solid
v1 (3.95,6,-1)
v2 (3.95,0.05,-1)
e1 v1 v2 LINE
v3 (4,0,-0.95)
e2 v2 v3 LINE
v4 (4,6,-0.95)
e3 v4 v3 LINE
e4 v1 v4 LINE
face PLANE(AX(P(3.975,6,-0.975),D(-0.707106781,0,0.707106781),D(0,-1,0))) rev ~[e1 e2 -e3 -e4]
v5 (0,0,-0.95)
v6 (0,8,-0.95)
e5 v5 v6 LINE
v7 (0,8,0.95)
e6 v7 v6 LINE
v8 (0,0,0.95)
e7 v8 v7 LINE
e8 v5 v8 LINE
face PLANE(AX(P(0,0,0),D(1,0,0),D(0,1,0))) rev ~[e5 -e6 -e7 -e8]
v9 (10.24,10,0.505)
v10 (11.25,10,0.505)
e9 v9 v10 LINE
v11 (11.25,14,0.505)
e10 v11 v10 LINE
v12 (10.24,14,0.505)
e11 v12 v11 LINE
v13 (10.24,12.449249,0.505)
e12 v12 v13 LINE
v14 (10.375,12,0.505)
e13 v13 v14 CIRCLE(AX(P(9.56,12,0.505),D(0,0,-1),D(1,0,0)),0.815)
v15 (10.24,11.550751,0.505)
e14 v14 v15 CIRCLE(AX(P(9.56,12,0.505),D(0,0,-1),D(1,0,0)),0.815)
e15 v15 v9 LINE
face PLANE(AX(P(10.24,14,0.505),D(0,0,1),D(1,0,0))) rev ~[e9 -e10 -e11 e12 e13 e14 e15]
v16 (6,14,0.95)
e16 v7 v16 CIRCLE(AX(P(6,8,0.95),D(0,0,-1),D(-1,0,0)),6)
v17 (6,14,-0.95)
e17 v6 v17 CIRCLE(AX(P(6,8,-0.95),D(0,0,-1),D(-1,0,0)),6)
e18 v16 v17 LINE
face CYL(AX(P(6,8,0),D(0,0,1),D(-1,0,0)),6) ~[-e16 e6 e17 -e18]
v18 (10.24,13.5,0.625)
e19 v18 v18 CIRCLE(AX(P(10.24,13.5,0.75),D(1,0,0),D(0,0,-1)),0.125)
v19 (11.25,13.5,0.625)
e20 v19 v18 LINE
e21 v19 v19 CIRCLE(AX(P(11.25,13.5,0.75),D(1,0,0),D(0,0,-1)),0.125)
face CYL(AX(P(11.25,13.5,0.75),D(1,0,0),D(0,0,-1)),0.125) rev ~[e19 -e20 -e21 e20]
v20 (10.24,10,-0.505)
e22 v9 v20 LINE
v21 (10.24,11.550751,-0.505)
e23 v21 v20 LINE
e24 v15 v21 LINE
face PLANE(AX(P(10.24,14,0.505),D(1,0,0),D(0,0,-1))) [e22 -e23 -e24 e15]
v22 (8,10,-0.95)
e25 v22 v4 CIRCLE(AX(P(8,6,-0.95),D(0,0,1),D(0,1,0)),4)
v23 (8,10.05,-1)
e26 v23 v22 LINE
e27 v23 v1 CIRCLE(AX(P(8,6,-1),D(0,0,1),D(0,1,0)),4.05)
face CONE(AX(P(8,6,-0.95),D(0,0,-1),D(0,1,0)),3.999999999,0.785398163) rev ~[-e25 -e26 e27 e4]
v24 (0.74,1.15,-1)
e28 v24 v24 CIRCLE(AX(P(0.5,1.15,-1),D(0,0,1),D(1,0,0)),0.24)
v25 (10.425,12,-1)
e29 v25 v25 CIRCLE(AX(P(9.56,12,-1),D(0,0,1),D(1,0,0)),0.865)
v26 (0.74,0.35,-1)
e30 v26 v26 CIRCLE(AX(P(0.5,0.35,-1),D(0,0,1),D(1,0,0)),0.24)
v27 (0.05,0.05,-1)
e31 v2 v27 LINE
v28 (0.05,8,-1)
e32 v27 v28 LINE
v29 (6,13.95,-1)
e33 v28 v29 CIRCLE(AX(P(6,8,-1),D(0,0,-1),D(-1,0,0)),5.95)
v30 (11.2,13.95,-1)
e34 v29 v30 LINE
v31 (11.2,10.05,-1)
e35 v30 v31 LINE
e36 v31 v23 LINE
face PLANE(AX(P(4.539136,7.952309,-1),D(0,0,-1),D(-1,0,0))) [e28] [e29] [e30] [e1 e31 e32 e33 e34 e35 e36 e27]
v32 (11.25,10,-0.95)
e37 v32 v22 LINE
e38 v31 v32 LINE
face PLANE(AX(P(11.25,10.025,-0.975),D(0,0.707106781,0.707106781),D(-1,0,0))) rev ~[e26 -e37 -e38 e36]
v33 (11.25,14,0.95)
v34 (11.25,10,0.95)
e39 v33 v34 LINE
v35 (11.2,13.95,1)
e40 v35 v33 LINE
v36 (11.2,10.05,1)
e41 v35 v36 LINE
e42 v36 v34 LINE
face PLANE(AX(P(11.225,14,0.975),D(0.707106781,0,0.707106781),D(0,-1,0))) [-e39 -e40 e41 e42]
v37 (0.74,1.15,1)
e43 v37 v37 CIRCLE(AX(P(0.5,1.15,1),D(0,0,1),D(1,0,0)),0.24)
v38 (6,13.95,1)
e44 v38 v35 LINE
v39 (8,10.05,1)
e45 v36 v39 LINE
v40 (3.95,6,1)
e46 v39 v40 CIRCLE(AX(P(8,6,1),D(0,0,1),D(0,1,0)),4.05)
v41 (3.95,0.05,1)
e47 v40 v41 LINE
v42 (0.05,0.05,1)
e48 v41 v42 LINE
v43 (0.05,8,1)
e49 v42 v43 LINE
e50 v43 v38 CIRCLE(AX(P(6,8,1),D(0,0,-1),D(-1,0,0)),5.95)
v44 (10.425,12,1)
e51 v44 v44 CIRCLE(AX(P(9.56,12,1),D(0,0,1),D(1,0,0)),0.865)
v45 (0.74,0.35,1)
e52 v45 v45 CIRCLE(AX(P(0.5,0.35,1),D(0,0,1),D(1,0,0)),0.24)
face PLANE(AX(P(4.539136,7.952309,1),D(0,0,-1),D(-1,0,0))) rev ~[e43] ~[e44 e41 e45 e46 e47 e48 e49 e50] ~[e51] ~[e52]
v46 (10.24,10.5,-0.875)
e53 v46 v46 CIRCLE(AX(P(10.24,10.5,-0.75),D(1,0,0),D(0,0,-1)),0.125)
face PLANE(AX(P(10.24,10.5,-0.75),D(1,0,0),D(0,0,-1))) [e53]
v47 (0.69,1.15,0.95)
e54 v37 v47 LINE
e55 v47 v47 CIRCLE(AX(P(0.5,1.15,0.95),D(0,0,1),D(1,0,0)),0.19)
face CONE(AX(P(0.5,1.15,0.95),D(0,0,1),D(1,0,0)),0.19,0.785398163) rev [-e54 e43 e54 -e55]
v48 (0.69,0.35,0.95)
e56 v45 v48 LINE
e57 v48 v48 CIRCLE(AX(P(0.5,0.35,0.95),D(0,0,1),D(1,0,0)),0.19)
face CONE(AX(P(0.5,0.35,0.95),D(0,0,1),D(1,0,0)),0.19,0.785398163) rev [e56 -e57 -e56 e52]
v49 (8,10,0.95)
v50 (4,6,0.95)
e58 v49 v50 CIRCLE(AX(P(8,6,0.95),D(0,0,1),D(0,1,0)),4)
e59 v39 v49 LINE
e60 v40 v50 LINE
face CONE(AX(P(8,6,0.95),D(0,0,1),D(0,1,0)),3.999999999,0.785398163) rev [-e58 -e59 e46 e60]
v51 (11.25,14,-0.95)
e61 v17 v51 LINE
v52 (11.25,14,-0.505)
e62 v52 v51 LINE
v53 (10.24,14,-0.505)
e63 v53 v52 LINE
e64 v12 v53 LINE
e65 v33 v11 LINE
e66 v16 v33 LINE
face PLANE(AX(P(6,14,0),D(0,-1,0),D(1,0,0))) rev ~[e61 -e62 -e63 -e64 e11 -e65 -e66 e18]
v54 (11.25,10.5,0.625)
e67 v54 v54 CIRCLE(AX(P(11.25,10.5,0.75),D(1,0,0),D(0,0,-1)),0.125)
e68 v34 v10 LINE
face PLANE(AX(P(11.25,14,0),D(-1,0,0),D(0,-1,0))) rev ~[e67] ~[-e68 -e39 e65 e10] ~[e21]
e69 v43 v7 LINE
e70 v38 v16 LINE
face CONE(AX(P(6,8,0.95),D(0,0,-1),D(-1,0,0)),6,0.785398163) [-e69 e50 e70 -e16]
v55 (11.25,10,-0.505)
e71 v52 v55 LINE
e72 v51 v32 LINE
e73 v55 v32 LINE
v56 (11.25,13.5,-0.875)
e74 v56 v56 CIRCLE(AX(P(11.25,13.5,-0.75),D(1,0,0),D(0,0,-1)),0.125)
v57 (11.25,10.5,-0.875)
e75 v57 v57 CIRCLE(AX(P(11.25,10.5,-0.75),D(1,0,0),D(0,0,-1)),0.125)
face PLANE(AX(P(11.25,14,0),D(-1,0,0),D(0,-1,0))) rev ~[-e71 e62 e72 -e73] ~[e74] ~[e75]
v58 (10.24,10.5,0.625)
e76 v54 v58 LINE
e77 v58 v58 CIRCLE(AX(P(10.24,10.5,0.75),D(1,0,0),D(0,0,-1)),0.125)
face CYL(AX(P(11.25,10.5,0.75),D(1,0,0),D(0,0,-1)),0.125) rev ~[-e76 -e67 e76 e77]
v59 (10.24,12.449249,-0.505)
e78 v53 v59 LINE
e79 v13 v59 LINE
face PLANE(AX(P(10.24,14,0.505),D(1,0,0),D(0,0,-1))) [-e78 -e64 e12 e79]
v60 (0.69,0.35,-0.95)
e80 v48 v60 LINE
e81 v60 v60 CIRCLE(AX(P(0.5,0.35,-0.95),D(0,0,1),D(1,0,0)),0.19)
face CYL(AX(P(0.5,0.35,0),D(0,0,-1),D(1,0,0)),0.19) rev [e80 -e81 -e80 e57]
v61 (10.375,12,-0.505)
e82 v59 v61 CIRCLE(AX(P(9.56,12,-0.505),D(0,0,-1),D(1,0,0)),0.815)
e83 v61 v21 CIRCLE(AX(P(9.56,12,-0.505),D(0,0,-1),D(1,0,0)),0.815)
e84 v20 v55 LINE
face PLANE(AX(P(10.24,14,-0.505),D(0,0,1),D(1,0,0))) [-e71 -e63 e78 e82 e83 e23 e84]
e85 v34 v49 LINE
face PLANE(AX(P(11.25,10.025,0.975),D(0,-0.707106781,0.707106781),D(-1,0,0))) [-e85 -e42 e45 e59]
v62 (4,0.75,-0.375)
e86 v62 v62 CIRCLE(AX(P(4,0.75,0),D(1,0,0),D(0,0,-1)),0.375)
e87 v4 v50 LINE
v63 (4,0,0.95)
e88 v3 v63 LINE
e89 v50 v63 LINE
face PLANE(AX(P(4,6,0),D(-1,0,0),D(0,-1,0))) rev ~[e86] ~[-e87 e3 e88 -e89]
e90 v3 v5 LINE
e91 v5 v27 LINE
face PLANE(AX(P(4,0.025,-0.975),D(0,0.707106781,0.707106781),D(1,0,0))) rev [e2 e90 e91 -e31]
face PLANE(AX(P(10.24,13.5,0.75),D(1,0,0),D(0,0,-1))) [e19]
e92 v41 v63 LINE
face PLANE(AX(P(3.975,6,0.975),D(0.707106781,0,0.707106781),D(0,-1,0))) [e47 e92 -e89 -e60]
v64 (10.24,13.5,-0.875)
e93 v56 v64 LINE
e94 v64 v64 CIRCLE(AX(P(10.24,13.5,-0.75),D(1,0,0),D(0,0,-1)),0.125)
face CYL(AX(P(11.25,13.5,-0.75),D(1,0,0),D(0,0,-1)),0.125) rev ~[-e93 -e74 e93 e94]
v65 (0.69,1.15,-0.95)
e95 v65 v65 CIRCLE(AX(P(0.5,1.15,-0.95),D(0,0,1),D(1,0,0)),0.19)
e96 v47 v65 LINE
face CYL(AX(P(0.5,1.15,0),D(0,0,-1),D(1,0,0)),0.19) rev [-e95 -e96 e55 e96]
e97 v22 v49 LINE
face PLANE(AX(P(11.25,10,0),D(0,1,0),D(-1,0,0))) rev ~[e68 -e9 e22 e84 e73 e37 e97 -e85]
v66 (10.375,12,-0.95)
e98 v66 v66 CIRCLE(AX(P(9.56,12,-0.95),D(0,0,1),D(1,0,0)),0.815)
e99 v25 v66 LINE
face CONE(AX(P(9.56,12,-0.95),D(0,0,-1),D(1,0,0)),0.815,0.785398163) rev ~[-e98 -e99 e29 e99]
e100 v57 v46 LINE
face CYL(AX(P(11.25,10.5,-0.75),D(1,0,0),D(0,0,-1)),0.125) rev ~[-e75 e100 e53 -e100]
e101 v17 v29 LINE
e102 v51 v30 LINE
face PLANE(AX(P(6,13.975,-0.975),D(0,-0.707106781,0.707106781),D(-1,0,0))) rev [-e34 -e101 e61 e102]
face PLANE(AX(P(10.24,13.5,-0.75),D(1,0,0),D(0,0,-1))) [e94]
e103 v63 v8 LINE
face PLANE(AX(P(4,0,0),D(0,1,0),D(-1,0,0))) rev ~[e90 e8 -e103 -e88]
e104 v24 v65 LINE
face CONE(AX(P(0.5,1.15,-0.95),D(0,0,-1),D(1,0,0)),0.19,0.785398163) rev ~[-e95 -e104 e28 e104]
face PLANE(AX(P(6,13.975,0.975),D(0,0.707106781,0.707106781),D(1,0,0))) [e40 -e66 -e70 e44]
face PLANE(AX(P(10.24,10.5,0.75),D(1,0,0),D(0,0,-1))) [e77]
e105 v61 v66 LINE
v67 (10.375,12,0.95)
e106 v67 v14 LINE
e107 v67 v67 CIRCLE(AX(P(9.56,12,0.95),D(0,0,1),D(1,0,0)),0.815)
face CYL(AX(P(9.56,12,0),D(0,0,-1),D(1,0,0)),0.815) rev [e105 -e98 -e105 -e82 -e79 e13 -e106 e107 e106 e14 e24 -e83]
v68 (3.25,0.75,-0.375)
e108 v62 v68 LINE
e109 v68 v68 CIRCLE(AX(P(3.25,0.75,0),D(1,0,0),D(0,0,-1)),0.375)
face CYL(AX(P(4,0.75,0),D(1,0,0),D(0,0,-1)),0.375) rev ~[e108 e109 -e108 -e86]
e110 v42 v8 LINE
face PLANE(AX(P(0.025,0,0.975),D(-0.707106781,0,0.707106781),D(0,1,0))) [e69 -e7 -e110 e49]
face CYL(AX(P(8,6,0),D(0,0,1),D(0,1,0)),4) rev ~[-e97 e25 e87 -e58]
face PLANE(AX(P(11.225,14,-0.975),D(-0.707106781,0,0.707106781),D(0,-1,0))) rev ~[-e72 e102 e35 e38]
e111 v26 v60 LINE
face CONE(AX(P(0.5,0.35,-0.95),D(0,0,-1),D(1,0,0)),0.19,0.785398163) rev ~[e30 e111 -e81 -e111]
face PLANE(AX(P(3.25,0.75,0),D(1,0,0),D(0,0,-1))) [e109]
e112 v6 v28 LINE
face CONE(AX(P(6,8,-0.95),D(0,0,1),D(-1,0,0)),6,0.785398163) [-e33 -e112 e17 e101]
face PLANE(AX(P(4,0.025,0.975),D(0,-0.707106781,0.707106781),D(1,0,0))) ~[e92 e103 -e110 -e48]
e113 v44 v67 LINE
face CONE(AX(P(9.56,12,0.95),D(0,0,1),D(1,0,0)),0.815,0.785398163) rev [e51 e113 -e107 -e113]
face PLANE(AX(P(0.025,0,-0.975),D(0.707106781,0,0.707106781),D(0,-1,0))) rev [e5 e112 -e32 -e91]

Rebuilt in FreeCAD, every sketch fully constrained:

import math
import FreeCAD as App
import Part
import Sketcher

V = App.Vector
Q = App.Units.Quantity


def edges_at(feature, points):
    """Names of the edges that pass closest to the given points."""
    edges = feature.Shape.Edges
    near = lambda p: min(range(len(edges)), key=lambda i: edges[i].distToShape(Part.Vertex(*p))[0])
    return sorted({f"Edge{near(p) + 1}" for p in points})

doc = App.newDocument("Part")
body = doc.addObject("PartDesign::Body", "Body")

sketch1 = doc.addObject("Sketcher::SketchObject", "Sketch")
body.addObject(sketch1)
sketch1.AttachmentSupport = (doc.XY_Plane, [""])
sketch1.MapMode = "FlatFace"
sketch1.addGeometry([
    Part.LineSegment(V(0, 8, 0), V(0, 0, 0)),
    Part.LineSegment(V(0, 0, 0), V(4, 0, 0)),
    Part.LineSegment(V(4, 0, 0), V(4, 6, 0)),
    Part.ArcOfCircle(Part.Circle(V(8, 6, 0), V(0, 0, 1), 4), math.radians(90), math.radians(180)),
    Part.LineSegment(V(8, 10, 0), V(11.25, 10, 0)),
    Part.LineSegment(V(11.25, 10, 0), V(11.25, 14, 0)),
    Part.LineSegment(V(11.25, 14, 0), V(6, 14, 0)),
    Part.ArcOfCircle(Part.Circle(V(6, 8, 0), V(0, 0, 1), 6), math.radians(90), math.radians(180)),
    Part.Circle(V(0.5, 0.35, 0), V(0, 0, 1), 0.19),
    Part.Circle(V(0.5, 1.15, 0), V(0, 0, 1), 0.19),
    Part.Circle(V(9.56, 12, 0), V(0, 0, 1), 0.81),
], False)
sketch1.addConstraint([
    Sketcher.Constraint("Coincident", 0, 2, 1, 1),
    Sketcher.Constraint("Coincident", 1, 2, 2, 1),
    Sketcher.Constraint("Tangent", 2, 2, 3, 2),
    Sketcher.Constraint("Tangent", 3, 1, 4, 1),
    Sketcher.Constraint("Coincident", 4, 2, 5, 1),
    Sketcher.Constraint("Coincident", 5, 2, 6, 1),
    Sketcher.Constraint("Tangent", 6, 2, 7, 1),
    Sketcher.Constraint("Tangent", 7, 2, 0, 1),
    Sketcher.Constraint("Vertical", 0),
    Sketcher.Constraint("Horizontal", 1),
    Sketcher.Constraint("Vertical", 2),
    Sketcher.Constraint("Horizontal", 4),
    Sketcher.Constraint("Vertical", 5),
    Sketcher.Constraint("Horizontal", 6),
    Sketcher.Constraint("Coincident", 0, 2, -1, 1),
    Sketcher.Constraint("Equal", 8, 9),
    Sketcher.Constraint("Vertical", 8, 3, 9, 3),
    Sketcher.Constraint("Equal", 1, 5),
    Sketcher.Constraint("Radius", 3, Q("4 mm")),
    Sketcher.Constraint("Radius", 7, Q("6 mm")),
    Sketcher.Constraint("Diameter", 8, Q("0.38 mm")),
    Sketcher.Constraint("Diameter", 10, Q("1.63 mm")),
    Sketcher.Constraint("DistanceX", 1, 1, 1, 2, Q("4 mm")),
    Sketcher.Constraint("DistanceY", 0, 2, 0, 1, Q("8 mm")),
    Sketcher.Constraint("DistanceY", -1, 1, 10, 3, Q("12 mm")),
    Sketcher.Constraint("DistanceX", 4, 1, 4, 2, Q("3.25 mm")),
    Sketcher.Constraint("DistanceX", -1, 1, 8, 3, Q("0.5 mm")),
    Sketcher.Constraint("DistanceY", 8, 3, 9, 3, Q("0.8 mm")),
    Sketcher.Constraint("DistanceY", -1, 1, 8, 3, Q("0.35 mm")),
    Sketcher.Constraint("DistanceX", -1, 1, 10, 3, Q("9.56 mm")),
])
pad1 = doc.addObject("PartDesign::Pad", "Pad")
body.addObject(pad1)
pad1.Profile = sketch1
pad1.Length = 2
pad1.Midplane = True

sketch2 = doc.addObject("Sketcher::SketchObject", "Sketch001")
body.addObject(sketch2)
sketch2.AttachmentSupport = (doc.YZ_Plane, [""])
sketch2.MapMode = "FlatFace"
sketch2.AttachmentOffset = App.Placement(V(0, 0, 4), App.Rotation())
sketch2.addGeometry(Part.Circle(V(0.75, 0, 0), V(0, 0, 1), 0.38), False)
sketch2.addConstraint([
    Sketcher.Constraint("PointOnObject", 0, 3, -1),
    Sketcher.Constraint("Diameter", 0, Q("0.75 mm")),
    Sketcher.Constraint("DistanceX", -1, 1, 0, 3, Q("0.75 mm")),
])
pocket1 = doc.addObject("PartDesign::Pocket", "Pocket")
body.addObject(pocket1)
pocket1.Profile = sketch2
pocket1.Length = 0.75

sketch3 = doc.addObject("Sketcher::SketchObject", "Sketch002")
body.addObject(sketch3)
sketch3.AttachmentSupport = (doc.XZ_Plane, [""])
sketch3.MapMode = "FlatFace"
sketch3.AttachmentOffset = App.Placement(V(0, 0, -14), App.Rotation())
sketch3.addGeometry([
    Part.LineSegment(V(10.2, -0.5, 0), V(10.2, 0.5, 0)),
    Part.LineSegment(V(10.2, 0.5, 0), V(11.2, 0.5, 0)),
    Part.LineSegment(V(11.2, 0.5, 0), V(11.2, -0.5, 0)),
    Part.LineSegment(V(11.2, -0.5, 0), V(10.2, -0.5, 0)),
], False)
sketch3.addConstraint([
    Sketcher.Constraint("Coincident", 0, 2, 1, 1),
    Sketcher.Constraint("Coincident", 1, 2, 2, 1),
    Sketcher.Constraint("Coincident", 2, 2, 3, 1),
    Sketcher.Constraint("Coincident", 3, 2, 0, 1),
    Sketcher.Constraint("Vertical", 0),
    Sketcher.Constraint("Horizontal", 1),
    Sketcher.Constraint("Vertical", 2),
    Sketcher.Constraint("Horizontal", 3),
    Sketcher.Constraint("Equal", 3, 0),
    Sketcher.Constraint("DistanceX", 1, 1, 1, 2, Q("1.01 mm")),
    Sketcher.Constraint("DistanceX", -1, 1, 0, 2, Q("10.24 mm")),
    Sketcher.Constraint("DistanceY", -1, 1, 0, 2, Q("0.505 mm")),
])
pocket2 = doc.addObject("PartDesign::Pocket", "Pocket001")
body.addObject(pocket2)
pocket2.Profile = sketch3
pocket2.Type = "ThroughAll"
pocket2.Reversed = True

sketch4 = doc.addObject("Sketcher::SketchObject", "Sketch003")
body.addObject(sketch4)
sketch4.AttachmentSupport = (doc.YZ_Plane, [""])
sketch4.MapMode = "FlatFace"
sketch4.AttachmentOffset = App.Placement(V(0, 0, 11.25), App.Rotation())
sketch4.addGeometry([
    Part.Circle(V(13.5, -0.75, 0), V(0, 0, 1), 0.12),
    Part.Circle(V(10.5, -0.75, 0), V(0, 0, 1), 0.12),
    Part.Circle(V(10.5, 0.75, 0), V(0, 0, 1), 0.12),
    Part.Circle(V(13.5, 0.75, 0), V(0, 0, 1), 0.12),
], False)
sketch4.addConstraint([
    Sketcher.Constraint("Equal", 0, 1),
    Sketcher.Constraint("Equal", 1, 2),
    Sketcher.Constraint("Equal", 2, 3),
    Sketcher.Constraint("Symmetric", 1, 3, 2, 3, -1),
    Sketcher.Constraint("Symmetric", 0, 3, 3, 3, -1),
    Sketcher.Constraint("Horizontal", 0, 3, 1, 3),
    Sketcher.Constraint("Diameter", 0, Q("0.25 mm")),
    Sketcher.Constraint("DistanceX", 1, 3, 0, 3, Q("3 mm")),
    Sketcher.Constraint("DistanceX", -1, 1, 0, 3, Q("13.5 mm")),
    Sketcher.Constraint("DistanceY", 1, 3, 2, 3, Q("1.5 mm")),
])
pocket3 = doc.addObject("PartDesign::Pocket", "Pocket002")
body.addObject(pocket3)
pocket3.Profile = sketch4
pocket3.Length = 1.01
doc.recompute()

chamfer = doc.addObject("PartDesign::Chamfer", "Chamfer")
body.addObject(chamfer)
chamfer.Base = (pocket3, edges_at(pocket3, [
    (9.625, 10, -1),
    (5.172, 8.828, -1),
    (4, 3, -1),
    (2, 0, -1),
    (5.172, 8.828, 1),
    (9.625, 10, 1),
    (11.25, 12, 1),
    (0.31, 0.35, -1),
    (0.31, 0.35, 1),
    (8.625, 14, 1),
    (0.31, 1.15, -1),
    (0.31, 1.15, 1),
    (1.757, 12.243, 1),
    (8.745, 12, -1),
    (8.745, 12, 1),
    (0, 4, 1),
    (2, 0, 1),
    (0, 4, -1),
    (4, 3, 1),
    (1.757, 12.243, -1),
    (8.625, 14, -1),
    (11.25, 12, -1),
]))
chamfer.Size = 0.05

doc.recompute()
